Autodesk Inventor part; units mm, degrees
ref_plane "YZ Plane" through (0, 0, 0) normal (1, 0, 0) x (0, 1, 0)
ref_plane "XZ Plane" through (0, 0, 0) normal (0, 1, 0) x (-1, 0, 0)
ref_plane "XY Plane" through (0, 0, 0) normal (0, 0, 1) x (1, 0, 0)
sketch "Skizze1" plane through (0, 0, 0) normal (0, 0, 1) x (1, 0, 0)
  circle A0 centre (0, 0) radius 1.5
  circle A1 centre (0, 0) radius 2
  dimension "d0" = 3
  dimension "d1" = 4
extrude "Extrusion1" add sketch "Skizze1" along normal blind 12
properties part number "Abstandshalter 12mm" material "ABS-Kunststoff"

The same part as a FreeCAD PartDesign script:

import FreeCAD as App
import Part
import Sketcher

V = App.Vector
Q = App.Units.Quantity

doc = App.newDocument("Part")
params = doc.addObject("Spreadsheet::Sheet", "Params")
for row, (alias, value) in enumerate([
    ("sketch1_diameter", "4 mm"),
    ("sketch1_diameter2", "3 mm"),
    ("pad1_length", "12 mm"),
], start=1):
    params.set(f"A{row}", alias)
    params.set(f"B{row}", "=" + value)
    params.setAlias(f"B{row}", alias)

body = doc.addObject("PartDesign::Body", "Body")

# Sketch on XY plane
sketch1 = doc.addObject("Sketcher::SketchObject", "Sketch")
body.addObject(sketch1)
sketch1.AttachmentSupport = (doc.XY_Plane, [""])
sketch1.MapMode = "FlatFace"
sketch1.addGeometry([
    Part.Circle(V(0, 0, 0), V(0, 0, 1), 2),
    Part.Circle(V(0, 0, 0), V(0, 0, 1), 1.5),
], False)
sketch1.addConstraint([
    Sketcher.Constraint("Coincident", 0, 3, -1, 1),
    Sketcher.Constraint("Coincident", 1, 3, -1, 1),
    Sketcher.Constraint("Diameter", 0, Q("4 mm")),
    Sketcher.Constraint("Diameter", 1, Q("3 mm")),
])
sketch1.setExpression("Constraints[2]", "Params.sketch1_diameter")
sketch1.setExpression("Constraints[3]", "Params.sketch1_diameter2")
pad1 = doc.addObject("PartDesign::Pad", "Pad")
body.addObject(pad1)
pad1.Profile = sketch1
pad1.setExpression("Length", "Params.pad1_length")

doc.recompute()
